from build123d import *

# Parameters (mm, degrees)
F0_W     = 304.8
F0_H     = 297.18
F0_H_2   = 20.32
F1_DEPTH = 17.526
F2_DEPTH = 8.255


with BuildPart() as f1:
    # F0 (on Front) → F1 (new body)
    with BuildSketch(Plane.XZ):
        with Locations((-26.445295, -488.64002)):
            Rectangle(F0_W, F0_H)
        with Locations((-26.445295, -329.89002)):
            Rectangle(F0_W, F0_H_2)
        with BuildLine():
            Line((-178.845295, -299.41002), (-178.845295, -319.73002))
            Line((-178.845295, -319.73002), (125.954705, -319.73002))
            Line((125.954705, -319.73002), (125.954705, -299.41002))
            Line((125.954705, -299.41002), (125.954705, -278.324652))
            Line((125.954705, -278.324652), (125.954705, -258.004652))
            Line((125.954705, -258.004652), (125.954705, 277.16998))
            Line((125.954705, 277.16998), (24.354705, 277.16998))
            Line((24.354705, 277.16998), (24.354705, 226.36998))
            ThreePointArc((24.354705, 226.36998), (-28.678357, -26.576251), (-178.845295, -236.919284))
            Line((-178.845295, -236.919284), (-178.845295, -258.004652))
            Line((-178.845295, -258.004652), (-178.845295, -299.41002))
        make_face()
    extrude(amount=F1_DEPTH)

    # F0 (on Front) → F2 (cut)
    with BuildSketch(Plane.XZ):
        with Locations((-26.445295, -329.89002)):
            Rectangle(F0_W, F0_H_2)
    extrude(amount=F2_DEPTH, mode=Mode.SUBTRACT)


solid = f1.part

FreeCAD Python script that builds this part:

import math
import FreeCAD as App
import Part
import Sketcher
from FreeCAD import Vector
Q = App.Units.Quantity


def add_polygon(sketch, points):
    """Adds a closed chain of lines whose ends are joined by coincident constraints."""
    first, n = sketch.GeometryCount, len(points)
    for a, b in zip(points, points[1:] + points[:1]):
        sketch.addGeometry(Part.LineSegment(App.Vector(*a, 0), App.Vector(*b, 0)), False)
    for i in range(n):
        sketch.addConstraint(Sketcher.Constraint("Coincident", first + i, 2, first + (i + 1) % n, 1))

doc = App.newDocument("Part")
body = doc.addObject("PartDesign::Body", "Body")

sketch1 = body.newObject("Sketcher::SketchObject", "Sketch")
sketch1.AttachmentSupport = (doc.getObject("XZ_Plane"), [""])
sketch1.MapMode = "FlatFace"
sketch1.addGeometry([
    Part.LineSegment(Vector(-179, -637, 0), Vector(126, -637, 0)),
    Part.LineSegment(Vector(126, -637, 0), Vector(126, 277, 0)),
    Part.LineSegment(Vector(126, 277, 0), Vector(24, 277, 0)),
    Part.LineSegment(Vector(24, 277, 0), Vector(24, 226, 0)),
    Part.ArcOfCircle(Part.Circle(Vector(-605, 226, 0), Vector(0, 0, 1), 630), math.radians(-47), math.radians(0)),
    Part.LineSegment(Vector(-179, -237, 0), Vector(-179, -637, 0)),
], False)
sketch1.addConstraint([
    Sketcher.Constraint("Coincident", 0, 2, 1, 1),
    Sketcher.Constraint("Coincident", 1, 2, 2, 1),
    Sketcher.Constraint("Coincident", 2, 2, 3, 1),
    Sketcher.Constraint("Tangent", 3, 2, 4, 2),
    Sketcher.Constraint("Coincident", 4, 1, 5, 1),
    Sketcher.Constraint("Coincident", 5, 2, 0, 1),
    Sketcher.Constraint("Horizontal", 0),
    Sketcher.Constraint("Vertical", 1),
    Sketcher.Constraint("Horizontal", 2),
    Sketcher.Constraint("Vertical", 3),
    Sketcher.Constraint("Vertical", 5),
    Sketcher.Constraint("DistanceX", 0, 1, 0, 2, Q("12 in")),
    Sketcher.Constraint("DistanceX", 2, 2, 2, 1, Q("4 in")),
    Sketcher.Constraint("DistanceY", 1, 1, 1, 2, Q("36 in")),
    Sketcher.Constraint("DistanceY", 3, 2, 3, 1, Q("2 in")),
    Sketcher.Constraint("Radius", 4, Q("629.742085 mm")),
    Sketcher.Constraint("DistanceX", 4, 3, -1, 1, Q("605.38738 mm")),
    Sketcher.Constraint("DistanceY", -1, 1, 4, 3, Q("226.369981 mm")),
])
pad1 = body.newObject("PartDesign::Pad", "Pad")
pad1.Profile = sketch1
pad1.Length = Q("0.69 in")

sketch2 = body.newObject("Sketcher::SketchObject", "Sketch001")
sketch2.AttachmentSupport = (doc.getObject("XZ_Plane"), [""])
sketch2.MapMode = "FlatFace"
add_polygon(sketch2, [(-179, -320), (-179, -340), (126, -340), (126, -320)])
sketch2.addConstraint([
    Sketcher.Constraint("Vertical", 0),
    Sketcher.Constraint("Horizontal", 1),
    Sketcher.Constraint("Vertical", 2),
    Sketcher.Constraint("Horizontal", 3),
    Sketcher.Constraint("DistanceX", 1, 1, 1, 2, Q("12 in")),
    Sketcher.Constraint("DistanceY", 0, 2, 0, 1, Q("0.8 in")),
    Sketcher.Constraint("DistanceY", 0, 2, -1, 1, Q("340.05002 mm")),
    Sketcher.Constraint("DistanceX", 0, 2, -1, 1, Q("178.845295 mm")),
])
pocket1 = body.newObject("PartDesign::Pocket", "Pocket")
pocket1.Profile = sketch2
pocket1.Length = Q("0.325 in")
pocket1.Reversed = True

doc.recompute()
